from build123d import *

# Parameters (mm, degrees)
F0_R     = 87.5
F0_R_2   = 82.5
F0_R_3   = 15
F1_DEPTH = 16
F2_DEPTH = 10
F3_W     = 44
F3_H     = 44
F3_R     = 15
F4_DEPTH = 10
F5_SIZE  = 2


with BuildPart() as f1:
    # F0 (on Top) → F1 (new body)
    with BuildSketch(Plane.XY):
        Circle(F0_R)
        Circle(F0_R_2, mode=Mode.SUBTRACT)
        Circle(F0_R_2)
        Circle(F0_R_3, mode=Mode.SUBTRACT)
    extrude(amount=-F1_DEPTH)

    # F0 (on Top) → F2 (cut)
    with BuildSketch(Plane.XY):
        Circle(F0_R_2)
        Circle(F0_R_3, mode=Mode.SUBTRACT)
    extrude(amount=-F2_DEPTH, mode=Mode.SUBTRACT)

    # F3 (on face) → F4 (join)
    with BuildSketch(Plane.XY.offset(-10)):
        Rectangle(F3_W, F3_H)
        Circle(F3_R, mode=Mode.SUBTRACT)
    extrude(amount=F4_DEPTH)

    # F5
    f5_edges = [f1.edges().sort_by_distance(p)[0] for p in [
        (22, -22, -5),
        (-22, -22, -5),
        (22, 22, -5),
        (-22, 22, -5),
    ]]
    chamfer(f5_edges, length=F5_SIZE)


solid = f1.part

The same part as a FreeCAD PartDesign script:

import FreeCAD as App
import Part
import Sketcher
from FreeCAD import Vector


def edges_at(feature, points):
    """Names of the edges that pass closest to the given points."""
    edges = feature.Shape.Edges
    near = lambda p: min(range(len(edges)), key=lambda i: edges[i].distToShape(Part.Vertex(*p))[0])
    return sorted({f"Edge{near(p) + 1}" for p in points})

doc = App.newDocument("Part")
body = doc.addObject("PartDesign::Body", "Body")

# Sketch on XY plane
sketch1 = body.newObject("Sketcher::SketchObject", "Sketch")
sketch1.AttachmentSupport = (doc.getObject("XY_Plane"), [""])
sketch1.MapMode = "FlatFace"
sketch1.addGeometry([
    Part.Circle(Vector(0, 0, 0), Vector(0, 0, 1), 88),
    Part.Circle(Vector(0, 0, 0), Vector(0, 0, 1), 15),
], False)
sketch1.addConstraint([
    Sketcher.Constraint("Coincident", 0, 3, -1, 1),
    Sketcher.Constraint("Coincident", 1, 3, -1, 1),
    Sketcher.Constraint("Diameter", 0, 175.0),
    Sketcher.Constraint("Diameter", 1, 30.0),
])
pad1 = body.newObject("PartDesign::Pad", "Pad")
pad1.Profile = sketch1
pad1.Length = 16
pad1.Reversed = True

# Sketch on XY plane
sketch2 = body.newObject("Sketcher::SketchObject", "Sketch001")
sketch2.AttachmentSupport = (doc.getObject("XY_Plane"), [""])
sketch2.MapMode = "FlatFace"
sketch2.addGeometry([
    Part.Circle(Vector(0, 0, 0), Vector(0, 0, 1), 82),
    Part.Circle(Vector(0, 0, 0), Vector(0, 0, 1), 15),
], False)
sketch2.addConstraint([
    Sketcher.Constraint("Coincident", 0, 3, -1, 1),
    Sketcher.Constraint("Coincident", 1, 3, -1, 1),
    Sketcher.Constraint("Diameter", 0, 165.0),
    Sketcher.Constraint("Diameter", 1, 30.0),
])
pocket1 = body.newObject("PartDesign::Pocket", "Pocket")
pocket1.Profile = sketch2
pocket1.Length = 10

# Sketch on XY plane
sketch3 = body.newObject("Sketcher::SketchObject", "Sketch002")
sketch3.AttachmentSupport = (doc.getObject("XY_Plane"), [""])
sketch3.MapMode = "FlatFace"
sketch3.AttachmentOffset = App.Placement(Vector(0, 0, -10), App.Rotation())
sketch3.addGeometry([
    Part.LineSegment(Vector(-22, 22, 0), Vector(-22, -22, 0)),  # 0
    Part.LineSegment(Vector(-22, -22, 0), Vector(22, -22, 0)),  # 1
    Part.LineSegment(Vector(22, -22, 0), Vector(22, 22, 0)),  # 2
    Part.LineSegment(Vector(22, 22, 0), Vector(-22, 22, 0)),  # 3
    Part.Circle(Vector(0, 0, 0), Vector(0, 0, 1), 15),  # 4
], False)
sketch3.addConstraint([
    Sketcher.Constraint("Coincident", 0, 2, 1, 1),
    Sketcher.Constraint("Coincident", 1, 2, 2, 1),
    Sketcher.Constraint("Coincident", 2, 2, 3, 1),
    Sketcher.Constraint("Coincident", 3, 2, 0, 1),
    Sketcher.Constraint("Vertical", 0),
    Sketcher.Constraint("Horizontal", 1),
    Sketcher.Constraint("Vertical", 2),
    Sketcher.Constraint("Horizontal", 3),
    Sketcher.Constraint("Coincident", 4, 3, -1, 1),
    Sketcher.Constraint("Symmetric", 0, 2, 2, 2, -1, 1),
    Sketcher.Constraint("Equal", 3, 0),
    Sketcher.Constraint("Diameter", 4, 30.0),
    Sketcher.Constraint("DistanceX", 1, 1, 1, 2, 44.0),
])
pad2 = body.newObject("PartDesign::Pad", "Pad001")
pad2.Profile = sketch3
pad2.Length = 10
doc.recompute()

chamfer = body.newObject("PartDesign::Chamfer", "Chamfer")
chamfer.Base = (pad2, edges_at(pad2, [
    (22, -22, -5),
    (-22, -22, -5),
    (22, 22, -5),
    (-22, 22, -5),
]))
chamfer.Size = 2

doc.recompute()
